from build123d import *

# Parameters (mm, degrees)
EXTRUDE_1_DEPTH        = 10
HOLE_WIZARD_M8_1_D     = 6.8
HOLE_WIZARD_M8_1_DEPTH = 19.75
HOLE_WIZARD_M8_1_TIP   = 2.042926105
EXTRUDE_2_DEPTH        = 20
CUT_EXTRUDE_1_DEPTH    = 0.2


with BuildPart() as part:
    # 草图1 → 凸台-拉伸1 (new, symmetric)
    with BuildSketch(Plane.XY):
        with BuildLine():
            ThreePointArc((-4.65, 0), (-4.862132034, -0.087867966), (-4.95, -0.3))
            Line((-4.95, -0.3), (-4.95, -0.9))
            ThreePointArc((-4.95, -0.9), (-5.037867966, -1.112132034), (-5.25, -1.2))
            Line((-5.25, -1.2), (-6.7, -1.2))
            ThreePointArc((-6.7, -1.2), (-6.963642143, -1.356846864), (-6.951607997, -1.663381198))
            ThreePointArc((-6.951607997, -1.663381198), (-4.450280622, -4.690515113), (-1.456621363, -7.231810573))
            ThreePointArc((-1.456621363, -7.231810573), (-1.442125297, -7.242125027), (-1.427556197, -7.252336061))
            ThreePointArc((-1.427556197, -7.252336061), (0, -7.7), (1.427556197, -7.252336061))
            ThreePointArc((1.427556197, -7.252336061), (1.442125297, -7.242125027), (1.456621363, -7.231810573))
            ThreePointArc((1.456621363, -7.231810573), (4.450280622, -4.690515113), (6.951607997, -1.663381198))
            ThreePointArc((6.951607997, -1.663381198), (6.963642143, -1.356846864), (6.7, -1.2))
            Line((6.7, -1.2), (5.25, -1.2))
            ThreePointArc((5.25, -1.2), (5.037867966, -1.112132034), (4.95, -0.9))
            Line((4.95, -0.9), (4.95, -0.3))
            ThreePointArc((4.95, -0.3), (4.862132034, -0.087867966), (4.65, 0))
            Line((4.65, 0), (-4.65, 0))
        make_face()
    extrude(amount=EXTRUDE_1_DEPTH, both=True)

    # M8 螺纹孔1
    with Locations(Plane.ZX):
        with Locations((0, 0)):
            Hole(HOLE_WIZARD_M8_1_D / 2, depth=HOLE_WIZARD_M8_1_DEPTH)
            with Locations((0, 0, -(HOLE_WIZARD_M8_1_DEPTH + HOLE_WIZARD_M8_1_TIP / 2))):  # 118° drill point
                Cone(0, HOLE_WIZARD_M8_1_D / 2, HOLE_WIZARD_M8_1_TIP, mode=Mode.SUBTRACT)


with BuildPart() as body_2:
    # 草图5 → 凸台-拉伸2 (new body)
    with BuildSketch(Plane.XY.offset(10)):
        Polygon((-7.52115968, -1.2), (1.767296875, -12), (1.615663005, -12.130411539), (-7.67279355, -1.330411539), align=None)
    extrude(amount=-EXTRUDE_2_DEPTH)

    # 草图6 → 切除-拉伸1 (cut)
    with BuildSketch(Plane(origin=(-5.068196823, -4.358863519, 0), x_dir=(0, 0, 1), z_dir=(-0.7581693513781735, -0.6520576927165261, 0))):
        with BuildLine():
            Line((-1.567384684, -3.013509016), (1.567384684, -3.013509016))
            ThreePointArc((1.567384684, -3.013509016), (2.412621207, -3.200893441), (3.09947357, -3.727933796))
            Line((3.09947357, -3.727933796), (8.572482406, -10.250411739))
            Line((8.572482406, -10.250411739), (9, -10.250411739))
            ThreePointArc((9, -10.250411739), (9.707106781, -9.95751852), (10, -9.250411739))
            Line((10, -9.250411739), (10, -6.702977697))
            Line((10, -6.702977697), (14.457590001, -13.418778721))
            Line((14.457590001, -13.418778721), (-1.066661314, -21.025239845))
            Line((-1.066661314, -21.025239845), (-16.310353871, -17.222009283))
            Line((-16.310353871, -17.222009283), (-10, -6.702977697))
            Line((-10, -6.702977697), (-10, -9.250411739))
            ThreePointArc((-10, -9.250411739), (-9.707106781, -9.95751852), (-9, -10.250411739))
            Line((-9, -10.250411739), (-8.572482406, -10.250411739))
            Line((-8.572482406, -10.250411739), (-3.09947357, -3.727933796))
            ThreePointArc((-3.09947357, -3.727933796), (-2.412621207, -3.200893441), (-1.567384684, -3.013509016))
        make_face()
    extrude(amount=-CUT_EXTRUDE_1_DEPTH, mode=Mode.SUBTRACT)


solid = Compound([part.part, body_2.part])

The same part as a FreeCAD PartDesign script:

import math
import FreeCAD as App
import Part
import Sketcher

V = App.Vector
Q = App.Units.Quantity

doc = App.newDocument("Part")
body = doc.addObject("PartDesign::Body", "Body")

sketch1 = body.newObject("Sketcher::SketchObject", "Sketch")
sketch1.AttachmentSupport = (doc.getObject("XY_Plane"), [""])
sketch1.MapMode = "FlatFace"
sketch1.addGeometry([
    Part.ArcOfCircle(Part.Circle(V(-4.65, -0.3, 0), V(0, 0, 1), 0.3), math.radians(90), math.radians(180)),
    Part.LineSegment(V(-4.95, -0.3, 0), V(-4.95, -0.9, 0)),
    Part.ArcOfCircle(Part.Circle(V(-5.25, -0.9, 0), V(0, 0, 1), 0.3), math.radians(-90), math.radians(0)),
    Part.LineSegment(V(-5.25, -1.2, 0), V(-6.7, -1.2, 0)),
    Part.ArcOfCircle(Part.Circle(V(-6.7, -1.5, 0), V(0, 0, 1), 0.3), math.radians(90), math.radians(212.997606)),
    Part.ArcOfCircle(Part.Circle(V(11.417977, 10.968454, 0), V(0, 0, 1), 22.293607), math.radians(-145.485663), math.radians(-125.275024)),
    Part.ArcOfCircle(Part.Circle(V(0.000014, -5.19998, 0), V(0, 0, 1), 2.500025), math.radians(-125.637041), math.radians(-124.821562)),
    Part.ArcOfCircle(Part.Circle(V(0, -5.2, 0), V(0, 0, 1), 2.5), math.radians(-124.821557), math.radians(-55.178443)),
    Part.ArcOfCircle(Part.Circle(V(-0.000014, -5.19998, 0), V(0, 0, 1), 2.500025), math.radians(-55.178438), math.radians(-54.362959)),
    Part.ArcOfCircle(Part.Circle(V(-11.417977, 10.968454, 0), V(0, 0, 1), 22.293607), math.radians(-54.724976), math.radians(-34.514337)),
    Part.ArcOfCircle(Part.Circle(V(6.7, -1.5, 0), V(0, 0, 1), 0.3), math.radians(-32.997606), math.radians(90)),
    Part.LineSegment(V(6.7, -1.2, 0), V(5.25, -1.2, 0)),
    Part.ArcOfCircle(Part.Circle(V(5.25, -0.9, 0), V(0, 0, 1), 0.3), math.radians(-180), math.radians(-90)),
    Part.LineSegment(V(4.95, -0.9, 0), V(4.95, -0.3, 0)),
    Part.ArcOfCircle(Part.Circle(V(4.65, -0.3, 0), V(0, 0, 1), 0.3), math.radians(0), math.radians(90)),
    Part.LineSegment(V(4.65, 0, 0), V(-4.65, 0, 0)),
], False)
sketch1.addConstraint([
    Sketcher.Constraint("Tangent", 0, 2, 1, 1),
    Sketcher.Constraint("Tangent", 1, 2, 2, 2),
    Sketcher.Constraint("Tangent", 2, 1, 3, 1),
    Sketcher.Constraint("Tangent", 3, 2, 4, 1),
    Sketcher.Constraint("Coincident", 4, 2, 5, 1),
    Sketcher.Constraint("Coincident", 5, 2, 6, 1),
    Sketcher.Constraint("Tangent", 6, 2, 7, 1),
    Sketcher.Constraint("Tangent", 7, 2, 8, 1),
    Sketcher.Constraint("Coincident", 8, 2, 9, 1),
    Sketcher.Constraint("Coincident", 9, 2, 10, 1),
    Sketcher.Constraint("Tangent", 10, 2, 11, 1),
    Sketcher.Constraint("Tangent", 11, 2, 12, 2),
    Sketcher.Constraint("Tangent", 12, 1, 13, 1),
    Sketcher.Constraint("Tangent", 13, 2, 14, 1),
    Sketcher.Constraint("Tangent", 14, 2, 15, 1),
    Sketcher.Constraint("Tangent", 15, 2, 0, 1),
    Sketcher.Constraint("Vertical", 1),
    Sketcher.Constraint("Horizontal", 3),
    Sketcher.Constraint("Horizontal", 11),
    Sketcher.Constraint("Vertical", 13),
    Sketcher.Constraint("Horizontal", 15),
    Sketcher.Constraint("Equal", 0, 2),
    Sketcher.Constraint("Equal", 2, 4),
    Sketcher.Constraint("Equal", 6, 8),
    Sketcher.Constraint("Equal", 5, 9),
    Sketcher.Constraint("Equal", 4, 10),
    Sketcher.Constraint("Equal", 10, 12),
    Sketcher.Constraint("Equal", 12, 14),
    Sketcher.Constraint("Symmetric", 14, 2, 15, 2, -1, 1),
    Sketcher.Constraint("Symmetric", 5, 3, 9, 3, -2),
    Sketcher.Constraint("Symmetric", 4, 3, 10, 3, -2),
    Sketcher.Constraint("Symmetric", 6, 2, 7, 2, -2),
    Sketcher.Constraint("Radius", 0, Q("0.3 mm")),
    Sketcher.Constraint("Radius", 7, Q("2.5 mm")),
    Sketcher.Constraint("DistanceX", 15, 2, 15, 1, Q("9.3 mm")),
    Sketcher.Constraint("DistanceY", 1, 2, 1, 1, Q("0.6 mm")),
    Sketcher.Constraint("DistanceX", 3, 2, 3, 1, Q("1.45 mm")),
    Sketcher.Constraint("DistanceY", 7, 3, -1, 1, Q("5.2 mm")),
    Sketcher.Constraint("Radius", 5, Q("22.293607 mm")),
    Sketcher.Constraint("Radius", 6, Q("2.500025 mm")),
    Sketcher.Constraint("DistanceY", 6, 3, 9, 2, Q("3.536599 mm")),
    Sketcher.Constraint("DistanceX", 5, 2, -1, 1, Q("1.456621 mm")),
    Sketcher.Constraint("DistanceX", 6, 2, 8, 3, Q("1.427542 mm")),
])
pad1 = body.newObject("PartDesign::Pad", "Pad")
pad1.Profile = sketch1
pad1.Length = 20
pad1.Midplane = True

sketch2 = body.newObject("Sketcher::SketchObject", "Sketch001")
sketch2.AttachmentSupport = (doc.getObject("XZ_Plane"), [""])
sketch2.MapMode = "FlatFace"
sketch2.addGeometry(Part.Circle(V(0, 0, 0), V(0, 0, 1), 3.4), False)
sketch2.addConstraint([
    Sketcher.Constraint("Coincident", 0, 3, -1, 1),
    Sketcher.Constraint("Diameter", 0, Q("6.8 mm")),
])
doc.recompute()
hole = body.newObject("PartDesign::Hole", "Hole")
hole.Profile = sketch2
hole.ThreadType = "None"
hole.Diameter = 6.8
hole.DepthType = "Dimension"
hole.Depth = 19.75
hole.DrillPoint = "Angled"
hole.DrillPointAngle = 118
hole.Reversed = True
body2 = doc.addObject("PartDesign::Body", "Body001")

sketch3 = body2.newObject("Sketcher::SketchObject", "Sketch002")
sketch3.AttachmentSupport = (doc.getObject("XY_Plane001"), [""])
sketch3.MapMode = "FlatFace"
sketch3.AttachmentOffset = App.Placement(V(0, 0, 10), App.Rotation())
sketch3.addGeometry([
    Part.LineSegment(V(1.767297, -12, 0), V(-7.52116, -1.2, 0)),
    Part.LineSegment(V(-7.52116, -1.2, 0), V(-7.672794, -1.330412, 0)),
    Part.LineSegment(V(-7.672794, -1.330412, 0), V(1.615663, -12.130412, 0)),
    Part.LineSegment(V(1.615663, -12.130412, 0), V(1.767297, -12, 0)),
], False)
sketch3.addConstraint([
    Sketcher.Constraint("Coincident", 0, 2, 1, 1),
    Sketcher.Constraint("Coincident", 1, 2, 2, 1),
    Sketcher.Constraint("Coincident", 2, 2, 3, 1),
    Sketcher.Constraint("Coincident", 3, 2, 0, 1),
    Sketcher.Constraint("Perpendicular", 0, 1),
    Sketcher.Constraint("Perpendicular", 1, 2),
    Sketcher.Constraint("Perpendicular", 2, 3),
    Sketcher.Constraint("DistanceY", 3, 2, -1, 1, Q("12 mm")),
    Sketcher.Constraint("Distance", 1, Q("0.2 mm")),
    Sketcher.Constraint("DistanceY", 0, 2, -1, 1, Q("1.2 mm")),
    Sketcher.Constraint("Distance", 0, Q("14.244839 mm")),
    Sketcher.Constraint("DistanceX", 0, 2, -1, 1, Q("7.52116 mm")),
])
pad2 = body2.newObject("PartDesign::Pad", "Pad001")
pad2.Profile = sketch3
pad2.Length = 20
pad2.Reversed = True

sketch4 = body2.newObject("Sketcher::SketchObject", "Sketch003")
sketch4.Placement = App.Placement(V(-5.068197, -4.358864, 0), App.Rotation(V(0, 0, 1), V(-0.652057693, 0.758169351, 0), V(-0.758169351, -0.652057693, 0), "ZXY"))
sketch4.addGeometry([
    Part.LineSegment(V(1.567385, -3.013509, 0), V(-1.567385, -3.013509, 0)),
    Part.ArcOfCircle(Part.Circle(V(-1.567385, -5.013509, 0), V(0, 0, 1), 2), math.radians(90), math.radians(140)),
    Part.LineSegment(V(-3.099474, -3.727934, 0), V(-8.572482, -10.250412, 0)),
    Part.LineSegment(V(-8.572482, -10.250412, 0), V(-9, -10.250412, 0)),
    Part.ArcOfCircle(Part.Circle(V(-9, -9.250412, 0), V(0, 0, 1), 1), math.radians(-180), math.radians(-90)),
    Part.LineSegment(V(-10, -9.250412, 0), V(-10, -6.702978, 0)),
    Part.LineSegment(V(-10, -6.702978, 0), V(-16.310354, -17.222009, 0)),
    Part.LineSegment(V(-16.310354, -17.222009, 0), V(-1.066661, -21.02524, 0)),
    Part.LineSegment(V(-1.066661, -21.02524, 0), V(14.45759, -13.418779, 0)),
    Part.LineSegment(V(14.45759, -13.418779, 0), V(10, -6.702978, 0)),
    Part.LineSegment(V(10, -6.702978, 0), V(10, -9.250412, 0)),
    Part.ArcOfCircle(Part.Circle(V(9, -9.250412, 0), V(0, 0, 1), 1), math.radians(-90), math.radians(0)),
    Part.LineSegment(V(9, -10.250412, 0), V(8.572482, -10.250412, 0)),
    Part.LineSegment(V(8.572482, -10.250412, 0), V(3.099474, -3.727934, 0)),
    Part.ArcOfCircle(Part.Circle(V(1.567385, -5.013509, 0), V(0, 0, 1), 2), math.radians(40), math.radians(90)),
], False)
sketch4.addConstraint([
    Sketcher.Constraint("Tangent", 0, 2, 1, 1),
    Sketcher.Constraint("Tangent", 1, 2, 2, 1),
    Sketcher.Constraint("Coincident", 2, 2, 3, 1),
    Sketcher.Constraint("Tangent", 3, 2, 4, 2),
    Sketcher.Constraint("Tangent", 4, 1, 5, 1),
    Sketcher.Constraint("Coincident", 5, 2, 6, 1),
    Sketcher.Constraint("Coincident", 6, 2, 7, 1),
    Sketcher.Constraint("Coincident", 7, 2, 8, 1),
    Sketcher.Constraint("Coincident", 8, 2, 9, 1),
    Sketcher.Constraint("Coincident", 9, 2, 10, 1),
    Sketcher.Constraint("Tangent", 10, 2, 11, 2),
    Sketcher.Constraint("Tangent", 11, 1, 12, 1),
    Sketcher.Constraint("Coincident", 12, 2, 13, 1),
    Sketcher.Constraint("Tangent", 13, 2, 14, 1),
    Sketcher.Constraint("Tangent", 14, 2, 0, 1),
    Sketcher.Constraint("Horizontal", 0),
    Sketcher.Constraint("Horizontal", 3),
    Sketcher.Constraint("Vertical", 5),
    Sketcher.Constraint("Vertical", 10),
    Sketcher.Constraint("Horizontal", 12),
    Sketcher.Constraint("Equal", 4, 11),
    Sketcher.Constraint("Equal", 1, 14),
    Sketcher.Constraint("Symmetric", 4, 3, 11, 3, -2),
    Sketcher.Constraint("Symmetric", 1, 2, 13, 2, -2),
    Sketcher.Constraint("Horizontal", 5, 2, 9, 2),
    Sketcher.Constraint("Radius", 1, Q("2 mm")),
    Sketcher.Constraint("Radius", 4, Q("1 mm")),
    Sketcher.Constraint("Angle", 2, Q("-130 deg")),
    Sketcher.Constraint("DistanceX", 4, 3, -1, 1, Q("9 mm")),
    Sketcher.Constraint("DistanceX", 0, 2, 0, 1, Q("3.134769 mm")),
    Sketcher.Constraint("DistanceY", 8, 2, 9, 2, Q("6.715801 mm")),
    Sketcher.Constraint("Distance", 2, Q("8.51449 mm")),
    Sketcher.Constraint("DistanceY", 5, 1, 5, 2, Q("2.547434 mm")),
    Sketcher.Constraint("DistanceY", 1, 3, -1, 1, Q("5.013509 mm")),
    Sketcher.Constraint("DistanceY", 6, 2, -1, 1, Q("17.222009 mm")),
    Sketcher.Constraint("DistanceX", 7, 2, -1, 1, Q("1.066661 mm")),
    Sketcher.Constraint("DistanceY", 7, 2, -1, 1, Q("21.02524 mm")),
    Sketcher.Constraint("DistanceX", -1, 1, 8, 2, Q("14.45759 mm")),
    Sketcher.Constraint("DistanceX", 6, 2, 2, 2, Q("7.737871 mm")),
])
pocket1 = body2.newObject("PartDesign::Pocket", "Pocket")
pocket1.Profile = sketch4
pocket1.Length = 0.2

doc.recompute()
